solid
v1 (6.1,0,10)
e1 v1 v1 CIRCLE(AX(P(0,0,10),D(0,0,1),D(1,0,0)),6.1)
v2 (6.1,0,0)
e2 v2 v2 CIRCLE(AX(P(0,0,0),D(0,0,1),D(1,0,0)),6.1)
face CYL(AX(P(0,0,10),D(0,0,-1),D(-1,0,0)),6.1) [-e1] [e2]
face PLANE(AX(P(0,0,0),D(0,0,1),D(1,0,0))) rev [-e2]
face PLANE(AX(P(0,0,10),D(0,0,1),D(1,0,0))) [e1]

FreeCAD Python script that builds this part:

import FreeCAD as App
import Part
import Sketcher
from FreeCAD import Vector

doc = App.newDocument("Part")
body = doc.addObject("PartDesign::Body", "Body")

# Sketch on XY plane
sketch1 = doc.addObject("Sketcher::SketchObject", "Sketch")
body.addObject(sketch1)
sketch1.AttachmentSupport = (doc.XY_Plane, [""])
sketch1.MapMode = "FlatFace"
sketch1.addGeometry(Part.Circle(Vector(0, 0, 0), Vector(0, 0, 1), 6.1), False)
sketch1.addConstraint(Sketcher.Constraint("Coincident", 0, 3, -1, 1))
sketch1.addConstraint(Sketcher.Constraint("Diameter", 0, 12.2))
pad1 = doc.addObject("PartDesign::Pad", "Pad")
body.addObject(pad1)
pad1.Profile = sketch1
pad1.Length = 10

doc.recompute()
